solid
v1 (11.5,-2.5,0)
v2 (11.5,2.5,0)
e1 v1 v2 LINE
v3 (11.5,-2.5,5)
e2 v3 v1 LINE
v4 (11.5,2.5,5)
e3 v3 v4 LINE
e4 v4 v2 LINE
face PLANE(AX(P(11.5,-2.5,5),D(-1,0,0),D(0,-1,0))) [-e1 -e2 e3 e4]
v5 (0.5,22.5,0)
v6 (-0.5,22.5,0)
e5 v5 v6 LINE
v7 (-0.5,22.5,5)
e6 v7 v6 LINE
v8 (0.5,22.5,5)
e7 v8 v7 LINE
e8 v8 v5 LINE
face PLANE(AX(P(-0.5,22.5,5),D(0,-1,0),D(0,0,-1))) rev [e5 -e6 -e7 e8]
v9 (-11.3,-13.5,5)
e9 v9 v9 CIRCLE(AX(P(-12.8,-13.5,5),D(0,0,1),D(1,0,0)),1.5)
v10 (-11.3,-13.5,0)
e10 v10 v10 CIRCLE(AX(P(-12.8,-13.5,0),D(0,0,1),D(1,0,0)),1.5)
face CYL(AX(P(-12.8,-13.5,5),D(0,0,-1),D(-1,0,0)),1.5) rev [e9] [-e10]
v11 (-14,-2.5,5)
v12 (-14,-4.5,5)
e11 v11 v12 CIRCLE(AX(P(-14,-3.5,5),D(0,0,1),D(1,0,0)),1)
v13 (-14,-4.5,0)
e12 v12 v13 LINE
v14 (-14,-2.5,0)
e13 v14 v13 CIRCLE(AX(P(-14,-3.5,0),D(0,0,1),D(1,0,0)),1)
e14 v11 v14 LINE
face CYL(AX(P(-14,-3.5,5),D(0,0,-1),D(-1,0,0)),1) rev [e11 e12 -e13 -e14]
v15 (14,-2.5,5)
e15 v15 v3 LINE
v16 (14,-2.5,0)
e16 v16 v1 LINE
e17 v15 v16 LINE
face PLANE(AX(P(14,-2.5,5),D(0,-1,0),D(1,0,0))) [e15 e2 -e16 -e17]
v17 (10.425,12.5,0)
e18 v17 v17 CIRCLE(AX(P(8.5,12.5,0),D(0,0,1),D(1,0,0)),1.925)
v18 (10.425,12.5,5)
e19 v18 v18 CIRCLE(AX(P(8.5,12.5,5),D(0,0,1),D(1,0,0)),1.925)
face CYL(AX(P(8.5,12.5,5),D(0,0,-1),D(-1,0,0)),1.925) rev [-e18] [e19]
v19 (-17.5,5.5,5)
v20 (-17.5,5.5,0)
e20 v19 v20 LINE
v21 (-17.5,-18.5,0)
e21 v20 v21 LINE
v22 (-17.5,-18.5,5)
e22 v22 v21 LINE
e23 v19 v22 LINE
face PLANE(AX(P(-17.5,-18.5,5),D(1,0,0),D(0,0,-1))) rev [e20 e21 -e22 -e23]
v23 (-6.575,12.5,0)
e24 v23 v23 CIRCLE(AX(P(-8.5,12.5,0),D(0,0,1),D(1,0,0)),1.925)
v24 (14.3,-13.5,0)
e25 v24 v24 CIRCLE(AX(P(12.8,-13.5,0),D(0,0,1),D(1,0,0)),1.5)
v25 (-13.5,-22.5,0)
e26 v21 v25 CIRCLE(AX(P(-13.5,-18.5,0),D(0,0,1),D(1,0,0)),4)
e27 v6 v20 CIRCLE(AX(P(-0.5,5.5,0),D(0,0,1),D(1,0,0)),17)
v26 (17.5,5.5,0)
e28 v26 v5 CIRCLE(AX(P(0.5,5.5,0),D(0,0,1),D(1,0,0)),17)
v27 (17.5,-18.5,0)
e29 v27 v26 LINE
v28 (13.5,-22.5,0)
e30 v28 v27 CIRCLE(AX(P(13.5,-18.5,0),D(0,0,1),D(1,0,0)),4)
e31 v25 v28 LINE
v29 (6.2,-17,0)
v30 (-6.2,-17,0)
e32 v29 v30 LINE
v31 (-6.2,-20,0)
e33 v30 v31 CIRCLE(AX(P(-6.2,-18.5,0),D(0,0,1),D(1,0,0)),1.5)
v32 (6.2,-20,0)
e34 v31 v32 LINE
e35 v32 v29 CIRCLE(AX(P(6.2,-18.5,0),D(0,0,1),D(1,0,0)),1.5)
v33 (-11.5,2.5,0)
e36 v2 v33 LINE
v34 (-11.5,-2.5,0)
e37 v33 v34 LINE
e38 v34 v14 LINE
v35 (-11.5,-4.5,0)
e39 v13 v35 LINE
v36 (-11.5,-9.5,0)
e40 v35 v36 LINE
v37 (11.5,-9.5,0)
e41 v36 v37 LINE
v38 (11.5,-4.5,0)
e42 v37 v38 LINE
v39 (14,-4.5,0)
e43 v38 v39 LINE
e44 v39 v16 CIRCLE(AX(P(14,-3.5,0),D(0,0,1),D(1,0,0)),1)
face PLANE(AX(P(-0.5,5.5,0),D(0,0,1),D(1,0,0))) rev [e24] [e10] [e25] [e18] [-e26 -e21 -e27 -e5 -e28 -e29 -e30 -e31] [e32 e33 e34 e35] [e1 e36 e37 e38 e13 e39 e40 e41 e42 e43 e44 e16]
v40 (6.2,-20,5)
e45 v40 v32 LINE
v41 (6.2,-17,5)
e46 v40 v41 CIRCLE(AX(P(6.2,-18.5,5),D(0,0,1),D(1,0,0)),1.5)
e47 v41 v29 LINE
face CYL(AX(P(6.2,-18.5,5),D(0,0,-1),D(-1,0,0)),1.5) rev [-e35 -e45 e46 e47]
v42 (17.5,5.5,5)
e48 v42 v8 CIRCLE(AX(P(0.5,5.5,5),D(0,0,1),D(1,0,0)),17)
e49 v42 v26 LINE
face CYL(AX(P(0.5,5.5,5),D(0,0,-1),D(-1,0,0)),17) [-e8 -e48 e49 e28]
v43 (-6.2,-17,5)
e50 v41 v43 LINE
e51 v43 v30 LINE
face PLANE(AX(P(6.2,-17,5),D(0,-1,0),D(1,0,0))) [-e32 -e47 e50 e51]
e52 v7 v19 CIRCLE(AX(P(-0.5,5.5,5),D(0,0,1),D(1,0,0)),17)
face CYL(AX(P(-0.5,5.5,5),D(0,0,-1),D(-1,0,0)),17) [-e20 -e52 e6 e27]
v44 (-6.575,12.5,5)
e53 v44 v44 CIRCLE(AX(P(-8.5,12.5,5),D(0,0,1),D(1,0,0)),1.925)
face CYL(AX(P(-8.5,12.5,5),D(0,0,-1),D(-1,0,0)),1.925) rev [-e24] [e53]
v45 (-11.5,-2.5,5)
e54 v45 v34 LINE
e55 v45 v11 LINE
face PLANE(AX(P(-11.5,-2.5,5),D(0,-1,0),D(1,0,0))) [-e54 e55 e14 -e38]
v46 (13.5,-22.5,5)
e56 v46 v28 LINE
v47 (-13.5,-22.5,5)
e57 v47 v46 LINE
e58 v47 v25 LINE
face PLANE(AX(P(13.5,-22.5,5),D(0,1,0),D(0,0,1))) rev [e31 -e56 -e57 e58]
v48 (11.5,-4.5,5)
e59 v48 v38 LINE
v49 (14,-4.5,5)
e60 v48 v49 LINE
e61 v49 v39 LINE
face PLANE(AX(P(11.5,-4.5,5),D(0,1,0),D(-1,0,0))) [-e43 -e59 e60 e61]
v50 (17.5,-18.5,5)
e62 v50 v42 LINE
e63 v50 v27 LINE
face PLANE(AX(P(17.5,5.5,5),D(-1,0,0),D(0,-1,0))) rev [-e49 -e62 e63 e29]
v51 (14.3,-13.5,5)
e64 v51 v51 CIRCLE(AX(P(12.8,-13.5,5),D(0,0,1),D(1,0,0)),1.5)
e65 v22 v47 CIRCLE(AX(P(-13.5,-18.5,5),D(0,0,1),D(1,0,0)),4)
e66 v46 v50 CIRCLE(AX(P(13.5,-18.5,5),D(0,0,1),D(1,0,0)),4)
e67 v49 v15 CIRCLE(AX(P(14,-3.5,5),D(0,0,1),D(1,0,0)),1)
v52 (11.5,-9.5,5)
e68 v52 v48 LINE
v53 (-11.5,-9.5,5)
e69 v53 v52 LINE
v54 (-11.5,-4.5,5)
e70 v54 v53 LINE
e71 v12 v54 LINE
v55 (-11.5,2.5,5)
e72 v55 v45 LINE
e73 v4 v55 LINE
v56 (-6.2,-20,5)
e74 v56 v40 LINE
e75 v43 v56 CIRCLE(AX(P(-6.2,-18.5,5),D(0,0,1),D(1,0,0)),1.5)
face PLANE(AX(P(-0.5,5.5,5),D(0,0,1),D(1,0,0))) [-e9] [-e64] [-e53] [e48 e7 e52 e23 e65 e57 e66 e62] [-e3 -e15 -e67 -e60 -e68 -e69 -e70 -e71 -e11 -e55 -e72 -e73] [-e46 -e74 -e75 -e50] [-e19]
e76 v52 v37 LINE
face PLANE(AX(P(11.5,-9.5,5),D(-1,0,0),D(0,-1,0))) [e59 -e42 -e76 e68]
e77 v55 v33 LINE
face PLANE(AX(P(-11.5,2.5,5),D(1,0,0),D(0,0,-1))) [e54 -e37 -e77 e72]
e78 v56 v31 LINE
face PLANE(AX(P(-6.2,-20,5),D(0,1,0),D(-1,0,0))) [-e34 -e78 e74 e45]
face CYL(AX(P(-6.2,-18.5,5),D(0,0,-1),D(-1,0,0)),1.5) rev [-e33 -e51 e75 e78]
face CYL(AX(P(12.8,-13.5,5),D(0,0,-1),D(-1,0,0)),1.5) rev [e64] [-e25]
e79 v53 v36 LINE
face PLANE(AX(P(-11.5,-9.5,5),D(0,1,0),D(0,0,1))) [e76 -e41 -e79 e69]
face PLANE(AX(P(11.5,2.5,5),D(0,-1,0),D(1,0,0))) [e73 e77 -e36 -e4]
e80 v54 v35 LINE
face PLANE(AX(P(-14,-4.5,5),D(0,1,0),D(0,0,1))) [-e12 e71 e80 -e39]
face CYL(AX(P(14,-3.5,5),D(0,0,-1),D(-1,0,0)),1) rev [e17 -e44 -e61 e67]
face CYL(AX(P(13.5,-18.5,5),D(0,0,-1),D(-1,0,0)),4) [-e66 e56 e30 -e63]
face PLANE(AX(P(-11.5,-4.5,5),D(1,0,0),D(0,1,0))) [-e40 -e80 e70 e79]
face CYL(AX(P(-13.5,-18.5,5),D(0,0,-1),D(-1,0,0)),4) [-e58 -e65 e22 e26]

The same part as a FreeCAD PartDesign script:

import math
import FreeCAD as App
import Part
import Sketcher
Q = App.Units.Quantity

doc = App.newDocument("Part")
body = doc.addObject("PartDesign::Body", "Body")

# Sketch on XY plane
sketch1 = body.newObject("Sketcher::SketchObject", "Sketch")
sketch1.AttachmentSupport = (doc.getObject("XY_Plane"), [""])
sketch1.MapMode = "FlatFace"
sketch1.addGeometry([
    Part.LineSegment(App.Vector(-13.5, -22.5, 0), App.Vector(13.5, -22.5, 0)),  # 0
    Part.ArcOfCircle(Part.Circle(App.Vector(13.5, -18.5, 0), App.Vector(0, 0, 1), 4), math.radians(-90), math.radians(0)),  # 1
    Part.LineSegment(App.Vector(17.5, -18.5, 0), App.Vector(17.5, 5.5, 0)),  # 2
    Part.ArcOfCircle(Part.Circle(App.Vector(0.5, 5.5, 0), App.Vector(0, 0, 1), 17), math.radians(0), math.radians(90)),  # 3
    Part.LineSegment(App.Vector(0.5, 22.5, 0), App.Vector(-0.5, 22.5, 0)),  # 4
    Part.ArcOfCircle(Part.Circle(App.Vector(-0.5, 5.5, 0), App.Vector(0, 0, 1), 17), math.radians(90), math.radians(180)),  # 5
    Part.LineSegment(App.Vector(-17.5, 5.5, 0), App.Vector(-17.5, -18.5, 0)),  # 6
    Part.ArcOfCircle(Part.Circle(App.Vector(-13.5, -18.5, 0), App.Vector(0, 0, 1), 4), math.radians(180), math.radians(270)),  # 7
    Part.Circle(App.Vector(12.8, -13.5, 0), App.Vector(0, 0, 1), 1.5),  # 8
    Part.ArcOfCircle(Part.Circle(App.Vector(-6.2, -18.5, 0), App.Vector(0, 0, 1), 1.5), math.radians(180), math.radians(270)),  # 9
    Part.ArcOfCircle(Part.Circle(App.Vector(-6.2, -18.5, 0), App.Vector(0, 0, 1), 1.5), math.radians(90), math.radians(180)),  # 10
    Part.LineSegment(App.Vector(-6.2, -17, 0), App.Vector(6.2, -17, 0)),  # 11
    Part.ArcOfCircle(Part.Circle(App.Vector(6.2, -18.5, 0), App.Vector(0, 0, 1), 1.5), math.radians(0), math.radians(90)),  # 12
    Part.ArcOfCircle(Part.Circle(App.Vector(6.2, -18.5, 0), App.Vector(0, 0, 1), 1.5), math.radians(-90), math.radians(0)),  # 13
    Part.LineSegment(App.Vector(6.2, -20, 0), App.Vector(-6.2, -20, 0)),  # 14
    Part.Circle(App.Vector(-12.8, -13.5, 0), App.Vector(0, 0, 1), 1.5),  # 15
    Part.LineSegment(App.Vector(-11.5, -9.5, 0), App.Vector(-11.5, -4.5, 0)),  # 16
    Part.LineSegment(App.Vector(-11.5, -4.5, 0), App.Vector(-14, -4.5, 0)),  # 17
    Part.ArcOfCircle(Part.Circle(App.Vector(-14, -3.5, 0), App.Vector(0, 0, 1), 1), math.radians(90), math.radians(270)),  # 18
    Part.LineSegment(App.Vector(-14, -2.5, 0), App.Vector(-11.5, -2.5, 0)),  # 19
    Part.LineSegment(App.Vector(-11.5, -2.5, 0), App.Vector(-11.5, 2.5, 0)),  # 20
    Part.LineSegment(App.Vector(-11.5, 2.5, 0), App.Vector(11.5, 2.5, 0)),  # 21
    Part.LineSegment(App.Vector(11.5, 2.5, 0), App.Vector(11.5, -2.5, 0)),  # 22
    Part.LineSegment(App.Vector(11.5, -2.5, 0), App.Vector(14, -2.5, 0)),  # 23
    Part.ArcOfCircle(Part.Circle(App.Vector(14, -3.5, 0), App.Vector(0, 0, 1), 1), math.radians(-90), math.radians(90)),  # 24
    Part.LineSegment(App.Vector(14, -4.5, 0), App.Vector(11.5, -4.5, 0)),  # 25
    Part.LineSegment(App.Vector(11.5, -4.5, 0), App.Vector(11.5, -9.5, 0)),  # 26
    Part.LineSegment(App.Vector(11.5, -9.5, 0), App.Vector(-11.5, -9.5, 0)),  # 27
    Part.Circle(App.Vector(8.5, 12.5, 0), App.Vector(0, 0, 1), 1.9),  # 28
    Part.Circle(App.Vector(-8.5, 12.5, 0), App.Vector(0, 0, 1), 1.9),  # 29
], False)
sketch1.addConstraint([
    Sketcher.Constraint("Tangent", 0, 2, 1, 1),
    Sketcher.Constraint("Tangent", 1, 2, 2, 1),
    Sketcher.Constraint("Tangent", 2, 2, 3, 1),
    Sketcher.Constraint("Tangent", 3, 2, 4, 1),
    Sketcher.Constraint("Tangent", 4, 2, 5, 1),
    Sketcher.Constraint("Tangent", 5, 2, 6, 1),
    Sketcher.Constraint("Tangent", 6, 2, 7, 1),
    Sketcher.Constraint("Tangent", 7, 2, 0, 1),
    Sketcher.Constraint("Tangent", 9, 1, 10, 2),
    Sketcher.Constraint("Tangent", 10, 1, 11, 1),
    Sketcher.Constraint("Tangent", 11, 2, 12, 2),
    Sketcher.Constraint("Tangent", 12, 1, 13, 2),
    Sketcher.Constraint("Tangent", 13, 1, 14, 1),
    Sketcher.Constraint("Tangent", 14, 2, 9, 2),
    Sketcher.Constraint("Coincident", 16, 2, 17, 1),
    Sketcher.Constraint("Tangent", 17, 2, 18, 2),
    Sketcher.Constraint("Tangent", 18, 1, 19, 1),
    Sketcher.Constraint("Coincident", 19, 2, 20, 1),
    Sketcher.Constraint("Coincident", 20, 2, 21, 1),
    Sketcher.Constraint("Coincident", 21, 2, 22, 1),
    Sketcher.Constraint("Coincident", 22, 2, 23, 1),
    Sketcher.Constraint("Tangent", 23, 2, 24, 2),
    Sketcher.Constraint("Tangent", 24, 1, 25, 1),
    Sketcher.Constraint("Coincident", 25, 2, 26, 1),
    Sketcher.Constraint("Coincident", 26, 2, 27, 1),
    Sketcher.Constraint("Coincident", 27, 2, 16, 1),
    Sketcher.Constraint("Horizontal", 0),
    Sketcher.Constraint("Vertical", 2),
    Sketcher.Constraint("Horizontal", 4),
    Sketcher.Constraint("Vertical", 6),
    Sketcher.Constraint("Horizontal", 11),
    Sketcher.Constraint("Horizontal", 14),
    Sketcher.Constraint("Vertical", 16),
    Sketcher.Constraint("Horizontal", 17),
    Sketcher.Constraint("Horizontal", 19),
    Sketcher.Constraint("Vertical", 20),
    Sketcher.Constraint("Horizontal", 21),
    Sketcher.Constraint("Vertical", 22),
    Sketcher.Constraint("Horizontal", 23),
    Sketcher.Constraint("Horizontal", 25),
    Sketcher.Constraint("Vertical", 26),
    Sketcher.Constraint("Horizontal", 27),
    Sketcher.Constraint("Equal", 3, 5),
    Sketcher.Constraint("Equal", 1, 7),
    Sketcher.Constraint("Equal", 8, 9),
    Sketcher.Constraint("Equal", 9, 10),
    Sketcher.Constraint("Equal", 10, 12),
    Sketcher.Constraint("Equal", 13, 15),
    Sketcher.Constraint("Equal", 18, 24),
    Sketcher.Constraint("Equal", 28, 29),
    Sketcher.Constraint("Symmetric", 19, 2, 21, 2, -1, 1),
    Sketcher.Constraint("Symmetric", 8, 3, 15, 3, -2),
    Sketcher.Constraint("Symmetric", 18, 3, 24, 3, -2),
    Sketcher.Constraint("Symmetric", 28, 3, 29, 3, -2),
    Sketcher.Constraint("Symmetric", 9, 1, 12, 1, -2),
    Sketcher.Constraint("Horizontal", 7, 3, 9, 3),
    Sketcher.Constraint("Horizontal", 6, 2, 9, 1),
    Sketcher.Constraint("Vertical", 16, 2, 19, 2),
    Sketcher.Constraint("Vertical", 22, 2, 25, 2),
    Sketcher.Constraint("Equal", 16, 20),
    Sketcher.Constraint("Diameter", 8, Q("3 mm")),
    Sketcher.Constraint("Radius", 1, Q("4 mm")),
    Sketcher.Constraint("Radius", 3, Q("17 mm")),
    Sketcher.Constraint("Radius", 18, Q("1 mm")),
    Sketcher.Constraint("Diameter", 28, Q("3.85 mm")),
    Sketcher.Constraint("DistanceX", 0, 1, 0, 2, Q("27 mm")),
    Sketcher.Constraint("DistanceX", 21, 1, 21, 2, Q("23 mm")),
    Sketcher.Constraint("DistanceY", 2, 1, 2, 2, Q("24 mm")),
    Sketcher.Constraint("DistanceY", 16, 1, 16, 2, Q("5 mm")),
    Sketcher.Constraint("DistanceX", 11, 1, 11, 2, Q("12.4 mm")),
    Sketcher.Constraint("DistanceX", 17, 2, 17, 1, Q("2.5 mm")),
    Sketcher.Constraint("DistanceY", 10, 1, -1, 1, Q("17 mm")),
    Sketcher.Constraint("DistanceY", 1, 3, 8, 3, Q("5 mm")),
    Sketcher.Constraint("DistanceX", 9, 3, 8, 3, Q("19 mm")),
    Sketcher.Constraint("DistanceX", 3, 3, 28, 3, Q("8 mm")),
    Sketcher.Constraint("DistanceY", 3, 3, 28, 3, Q("7 mm")),
    Sketcher.Constraint("DistanceX", 29, 3, 5, 3, Q("8 mm")),
])
pad1 = body.newObject("PartDesign::Pad", "Pad")
pad1.Profile = sketch1
pad1.Length = 5

doc.recompute()
